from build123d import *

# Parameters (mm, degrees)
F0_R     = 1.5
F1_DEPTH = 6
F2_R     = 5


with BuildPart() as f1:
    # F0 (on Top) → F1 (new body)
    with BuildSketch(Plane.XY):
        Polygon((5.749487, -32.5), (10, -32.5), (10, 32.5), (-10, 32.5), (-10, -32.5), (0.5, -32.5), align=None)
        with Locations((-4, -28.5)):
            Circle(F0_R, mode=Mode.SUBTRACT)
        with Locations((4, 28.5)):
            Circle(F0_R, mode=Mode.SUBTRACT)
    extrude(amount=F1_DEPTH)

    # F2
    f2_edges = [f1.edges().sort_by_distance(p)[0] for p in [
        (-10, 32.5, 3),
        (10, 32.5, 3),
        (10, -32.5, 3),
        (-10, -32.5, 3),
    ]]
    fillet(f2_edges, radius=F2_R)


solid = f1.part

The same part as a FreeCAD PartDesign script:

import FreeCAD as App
import Part
import Sketcher
Q = App.Units.Quantity


def edges_at(feature, points):
    """Names of the edges that pass closest to the given points."""
    edges = feature.Shape.Edges
    near = lambda p: min(range(len(edges)), key=lambda i: edges[i].distToShape(Part.Vertex(*p))[0])
    return sorted({f"Edge{near(p) + 1}" for p in points})


def add_polygon(sketch, points):
    """Adds a closed chain of lines whose ends are joined by coincident constraints."""
    first, n = sketch.GeometryCount, len(points)
    for a, b in zip(points, points[1:] + points[:1]):
        sketch.addGeometry(Part.LineSegment(App.Vector(*a, 0), App.Vector(*b, 0)), False)
    for i in range(n):
        sketch.addConstraint(Sketcher.Constraint("Coincident", first + i, 2, first + (i + 1) % n, 1))

doc = App.newDocument("Part")
params = doc.addObject("Spreadsheet::Sheet", "Params")
for row, (alias, value) in enumerate([
    ("sketch1_diameter", "3 mm"),
    ("sketch1_width", "20 mm"),
    ("sketch1_height", "65 mm"),
    ("pad1_length", "6 mm"),
    ("fillet_radius", "5 mm"),
], start=1):
    params.set(f"A{row}", alias)
    params.set(f"B{row}", "=" + value)
    params.setAlias(f"B{row}", alias)

body = doc.addObject("PartDesign::Body", "Body")

# Sketch on XY plane
sketch1 = body.newObject("Sketcher::SketchObject", "Sketch")
sketch1.AttachmentSupport = (doc.getObject("XY_Plane"), [""])
sketch1.MapMode = "FlatFace"
add_polygon(sketch1, [(10, -32.5), (10, 32.5), (-10, 32.5), (-10, -32.5)])  # lines 0-3
sketch1.addGeometry(Part.Circle(App.Vector(-4, -28.5, 0), App.Vector(0, 0, 1), 1.5), False)  # 4
sketch1.addGeometry(Part.Circle(App.Vector(4, 28.5, 0), App.Vector(0, 0, 1), 1.5), False)  # 5
sketch1.addConstraint(Sketcher.Constraint("Vertical", 0))
sketch1.addConstraint(Sketcher.Constraint("Horizontal", 1))
sketch1.addConstraint(Sketcher.Constraint("Vertical", 2))
sketch1.addConstraint(Sketcher.Constraint("Horizontal", 3))
sketch1.addConstraint(Sketcher.Constraint("Equal", 4, 5))
sketch1.addConstraint(Sketcher.Constraint("Symmetric", 4, 3, 5, 3, -1, 1))
sketch1.addConstraint(Sketcher.Constraint("Symmetric", 0, 2, 2, 2, -1, 1))
sketch1.addConstraint(Sketcher.Constraint("Diameter", 4, Q("3 mm")))
sketch1.addConstraint(Sketcher.Constraint("DistanceX", 1, 2, 1, 1, Q("20 mm")))
sketch1.addConstraint(Sketcher.Constraint("DistanceY", 0, 1, 0, 2, Q("65 mm")))
sketch1.addConstraint(Sketcher.Constraint("DistanceX", 4, 3, -1, 1, Q("4 mm")))
sketch1.addConstraint(Sketcher.Constraint("DistanceY", 4, 3, 5, 3, Q("57 mm")))
sketch1.setExpression("Constraints[11]", "Params.sketch1_diameter")
sketch1.setExpression("Constraints[12]", "Params.sketch1_width")
sketch1.setExpression("Constraints[13]", "Params.sketch1_height")
pad1 = body.newObject("PartDesign::Pad", "Pad")
pad1.Profile = sketch1
pad1.setExpression("Length", "Params.pad1_length")
doc.recompute()

fillet = body.newObject("PartDesign::Fillet", "Fillet")
fillet.Base = (pad1, edges_at(pad1, [
    (-10, 32.5, 3),
    (10, 32.5, 3),
    (10, -32.5, 3),
    (-10, -32.5, 3),
]))
fillet.setExpression("Radius", "Params.fillet_radius")

doc.recompute()
